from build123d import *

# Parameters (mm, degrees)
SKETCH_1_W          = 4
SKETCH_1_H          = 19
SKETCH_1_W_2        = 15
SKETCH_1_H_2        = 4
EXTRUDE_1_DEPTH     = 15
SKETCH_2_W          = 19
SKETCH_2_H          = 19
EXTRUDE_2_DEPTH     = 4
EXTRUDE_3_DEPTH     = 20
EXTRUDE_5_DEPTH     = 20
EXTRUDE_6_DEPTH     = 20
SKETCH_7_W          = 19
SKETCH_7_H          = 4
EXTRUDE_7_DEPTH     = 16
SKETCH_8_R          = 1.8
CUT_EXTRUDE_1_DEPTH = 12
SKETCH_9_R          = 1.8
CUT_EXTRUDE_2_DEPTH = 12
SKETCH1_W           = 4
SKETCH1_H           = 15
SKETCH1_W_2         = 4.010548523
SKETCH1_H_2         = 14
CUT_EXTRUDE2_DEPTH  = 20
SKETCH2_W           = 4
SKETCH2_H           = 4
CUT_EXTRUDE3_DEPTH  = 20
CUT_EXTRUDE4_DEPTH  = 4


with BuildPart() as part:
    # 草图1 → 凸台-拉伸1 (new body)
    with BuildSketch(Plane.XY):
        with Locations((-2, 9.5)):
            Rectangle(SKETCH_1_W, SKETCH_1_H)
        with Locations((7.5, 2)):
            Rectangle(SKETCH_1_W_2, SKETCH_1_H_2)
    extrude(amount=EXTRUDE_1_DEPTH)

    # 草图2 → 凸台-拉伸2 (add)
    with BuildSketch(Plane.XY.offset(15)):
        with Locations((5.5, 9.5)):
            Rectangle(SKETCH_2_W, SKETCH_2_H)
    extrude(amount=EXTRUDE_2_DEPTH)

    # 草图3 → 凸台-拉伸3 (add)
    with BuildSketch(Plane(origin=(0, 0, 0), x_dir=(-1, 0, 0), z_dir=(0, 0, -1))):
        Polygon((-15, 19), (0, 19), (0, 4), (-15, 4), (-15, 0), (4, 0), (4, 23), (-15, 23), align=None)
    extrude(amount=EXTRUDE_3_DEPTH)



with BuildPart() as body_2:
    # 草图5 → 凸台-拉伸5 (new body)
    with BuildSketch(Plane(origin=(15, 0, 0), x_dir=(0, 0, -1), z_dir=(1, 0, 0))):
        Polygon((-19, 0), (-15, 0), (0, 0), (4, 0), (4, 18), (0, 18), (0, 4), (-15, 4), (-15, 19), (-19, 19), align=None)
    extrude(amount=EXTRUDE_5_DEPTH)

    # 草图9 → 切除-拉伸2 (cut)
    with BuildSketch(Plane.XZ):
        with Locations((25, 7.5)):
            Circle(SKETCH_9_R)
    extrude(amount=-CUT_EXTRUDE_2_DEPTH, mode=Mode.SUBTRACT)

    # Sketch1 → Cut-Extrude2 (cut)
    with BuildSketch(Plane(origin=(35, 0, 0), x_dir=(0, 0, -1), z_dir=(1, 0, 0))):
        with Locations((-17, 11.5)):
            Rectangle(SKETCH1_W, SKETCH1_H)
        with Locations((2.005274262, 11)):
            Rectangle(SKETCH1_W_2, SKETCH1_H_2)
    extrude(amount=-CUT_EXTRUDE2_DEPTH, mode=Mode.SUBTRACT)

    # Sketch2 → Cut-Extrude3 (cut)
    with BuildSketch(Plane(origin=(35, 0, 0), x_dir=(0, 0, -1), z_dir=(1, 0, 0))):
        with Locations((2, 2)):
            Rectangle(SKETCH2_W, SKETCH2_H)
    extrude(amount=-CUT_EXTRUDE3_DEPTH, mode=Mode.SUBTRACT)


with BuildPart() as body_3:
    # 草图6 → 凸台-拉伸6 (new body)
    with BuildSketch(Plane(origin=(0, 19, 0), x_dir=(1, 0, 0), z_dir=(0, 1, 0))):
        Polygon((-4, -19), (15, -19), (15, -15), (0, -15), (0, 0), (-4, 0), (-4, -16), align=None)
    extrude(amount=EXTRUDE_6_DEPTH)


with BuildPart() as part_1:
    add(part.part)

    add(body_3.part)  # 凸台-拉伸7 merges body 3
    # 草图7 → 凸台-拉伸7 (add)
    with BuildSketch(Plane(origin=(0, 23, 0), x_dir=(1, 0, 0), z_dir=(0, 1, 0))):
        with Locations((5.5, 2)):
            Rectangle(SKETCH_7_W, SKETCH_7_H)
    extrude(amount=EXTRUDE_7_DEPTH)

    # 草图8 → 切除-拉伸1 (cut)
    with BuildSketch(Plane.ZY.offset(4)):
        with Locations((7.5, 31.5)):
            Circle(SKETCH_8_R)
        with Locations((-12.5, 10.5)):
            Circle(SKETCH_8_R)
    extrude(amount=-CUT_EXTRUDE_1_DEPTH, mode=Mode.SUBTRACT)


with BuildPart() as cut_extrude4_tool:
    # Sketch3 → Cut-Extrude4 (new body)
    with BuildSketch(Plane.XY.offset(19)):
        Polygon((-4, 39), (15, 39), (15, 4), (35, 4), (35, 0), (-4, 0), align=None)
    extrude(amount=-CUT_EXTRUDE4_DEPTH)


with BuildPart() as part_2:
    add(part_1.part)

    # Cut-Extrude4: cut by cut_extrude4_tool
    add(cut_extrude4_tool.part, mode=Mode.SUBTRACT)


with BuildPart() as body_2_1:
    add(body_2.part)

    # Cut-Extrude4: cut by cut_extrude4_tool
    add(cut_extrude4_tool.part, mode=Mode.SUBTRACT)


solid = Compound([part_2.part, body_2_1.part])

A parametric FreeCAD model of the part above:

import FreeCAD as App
import Part
import Sketcher
from FreeCAD import Vector
Q = App.Units.Quantity

doc = App.newDocument("Part")
body = doc.addObject("PartDesign::Body", "Body")

# Sketch on XY plane
sketch1 = doc.addObject("Sketcher::SketchObject", "Sketch")
body.addObject(sketch1)
sketch1.AttachmentSupport = (doc.XY_Plane, [""])
sketch1.MapMode = "FlatFace"
sketch1.addGeometry(Part.LineSegment(Vector(-4, 19, 0), Vector(-4, 0, 0)), False)
sketch1.addGeometry(Part.LineSegment(Vector(-4, 0, 0), Vector(15, 0, 0)), False)
sketch1.addGeometry(Part.LineSegment(Vector(15, 0, 0), Vector(15, 4, 0)), False)
sketch1.addGeometry(Part.LineSegment(Vector(15, 4, 0), Vector(0, 4, 0)), False)
sketch1.addGeometry(Part.LineSegment(Vector(0, 4, 0), Vector(0, 19, 0)), False)
sketch1.addGeometry(Part.LineSegment(Vector(0, 19, 0), Vector(-4, 19, 0)), False)
sketch1.addConstraint(Sketcher.Constraint("Coincident", 0, 2, 1, 1))
sketch1.addConstraint(Sketcher.Constraint("Coincident", 1, 2, 2, 1))
sketch1.addConstraint(Sketcher.Constraint("Coincident", 2, 2, 3, 1))
sketch1.addConstraint(Sketcher.Constraint("Coincident", 3, 2, 4, 1))
sketch1.addConstraint(Sketcher.Constraint("Coincident", 4, 2, 5, 1))
sketch1.addConstraint(Sketcher.Constraint("Coincident", 5, 2, 0, 1))
sketch1.addConstraint(Sketcher.Constraint("Vertical", 0))
sketch1.addConstraint(Sketcher.Constraint("Horizontal", 1))
sketch1.addConstraint(Sketcher.Constraint("Vertical", 2))
sketch1.addConstraint(Sketcher.Constraint("Horizontal", 3))
sketch1.addConstraint(Sketcher.Constraint("Vertical", 4))
sketch1.addConstraint(Sketcher.Constraint("Horizontal", 5))
sketch1.addConstraint(Sketcher.Constraint("PointOnObject", 0, 2, -1))
sketch1.addConstraint(Sketcher.Constraint("PointOnObject", 3, 2, -2))
sketch1.addConstraint(Sketcher.Constraint("Equal", 1, 0))
sketch1.addConstraint(Sketcher.Constraint("Equal", 5, 2))
sketch1.addConstraint(Sketcher.Constraint("DistanceX", 1, 1, 1, 2, Q("19 mm")))
sketch1.addConstraint(Sketcher.Constraint("DistanceX", 3, 2, 3, 1, Q("15 mm")))
pad1 = doc.addObject("PartDesign::Pad", "Pad")
body.addObject(pad1)
pad1.Profile = sketch1
pad1.Length = 15

# Sketch on XY plane
sketch2 = doc.addObject("Sketcher::SketchObject", "Sketch001")
body.addObject(sketch2)
sketch2.AttachmentSupport = (doc.XY_Plane, [""])
sketch2.MapMode = "FlatFace"
sketch2.AttachmentOffset = App.Placement(Vector(0, 0, 15), App.Rotation())
sketch2.addGeometry(Part.LineSegment(Vector(-4, 19, 0), Vector(-4, 0, 0)), False)
sketch2.addGeometry(Part.LineSegment(Vector(-4, 0, 0), Vector(15, 0, 0)), False)
sketch2.addGeometry(Part.LineSegment(Vector(15, 0, 0), Vector(15, 19, 0)), False)
sketch2.addGeometry(Part.LineSegment(Vector(15, 19, 0), Vector(-4, 19, 0)), False)
sketch2.addConstraint(Sketcher.Constraint("Coincident", 0, 2, 1, 1))
sketch2.addConstraint(Sketcher.Constraint("Coincident", 1, 2, 2, 1))
sketch2.addConstraint(Sketcher.Constraint("Coincident", 2, 2, 3, 1))
sketch2.addConstraint(Sketcher.Constraint("Coincident", 3, 2, 0, 1))
sketch2.addConstraint(Sketcher.Constraint("Vertical", 0))
sketch2.addConstraint(Sketcher.Constraint("Horizontal", 1))
sketch2.addConstraint(Sketcher.Constraint("Vertical", 2))
sketch2.addConstraint(Sketcher.Constraint("Horizontal", 3))
sketch2.addConstraint(Sketcher.Constraint("PointOnObject", 0, 2, -1))
sketch2.addConstraint(Sketcher.Constraint("Equal", 3, 0))
sketch2.addConstraint(Sketcher.Constraint("DistanceX", 1, 1, 1, 2, Q("19 mm")))
sketch2.addConstraint(Sketcher.Constraint("DistanceX", 0, 2, -1, 1, Q("4 mm")))
pad2 = doc.addObject("PartDesign::Pad", "Pad001")
body.addObject(pad2)
pad2.Profile = sketch2
pad2.Length = 4

# Sketch on XY plane
sketch3 = doc.addObject("Sketcher::SketchObject", "Sketch002")
body.addObject(sketch3)
sketch3.AttachmentSupport = (doc.XY_Plane, [""])
sketch3.MapMode = "FlatFace"
sketch3.addGeometry(Part.LineSegment(Vector(15, 19, 0), Vector(0, 19, 0)), False)
sketch3.addGeometry(Part.LineSegment(Vector(0, 19, 0), Vector(0, 4, 0)), False)
sketch3.addGeometry(Part.LineSegment(Vector(0, 4, 0), Vector(15, 4, 0)), False)
sketch3.addGeometry(Part.LineSegment(Vector(15, 4, 0), Vector(15, 0, 0)), False)
sketch3.addGeometry(Part.LineSegment(Vector(15, 0, 0), Vector(-4, 0, 0)), False)
sketch3.addGeometry(Part.LineSegment(Vector(-4, 0, 0), Vector(-4, 23, 0)), False)
sketch3.addGeometry(Part.LineSegment(Vector(-4, 23, 0), Vector(15, 23, 0)), False)
sketch3.addGeometry(Part.LineSegment(Vector(15, 23, 0), Vector(15, 19, 0)), False)
sketch3.addConstraint(Sketcher.Constraint("Coincident", 0, 2, 1, 1))
sketch3.addConstraint(Sketcher.Constraint("Coincident", 1, 2, 2, 1))
sketch3.addConstraint(Sketcher.Constraint("Coincident", 2, 2, 3, 1))
sketch3.addConstraint(Sketcher.Constraint("Coincident", 3, 2, 4, 1))
sketch3.addConstraint(Sketcher.Constraint("Coincident", 4, 2, 5, 1))
sketch3.addConstraint(Sketcher.Constraint("Coincident", 5, 2, 6, 1))
sketch3.addConstraint(Sketcher.Constraint("Coincident", 6, 2, 7, 1))
sketch3.addConstraint(Sketcher.Constraint("Coincident", 7, 2, 0, 1))
sketch3.addConstraint(Sketcher.Constraint("Horizontal", 0))
sketch3.addConstraint(Sketcher.Constraint("Vertical", 1))
sketch3.addConstraint(Sketcher.Constraint("Horizontal", 2))
sketch3.addConstraint(Sketcher.Constraint("Vertical", 3))
sketch3.addConstraint(Sketcher.Constraint("Horizontal", 4))
sketch3.addConstraint(Sketcher.Constraint("Vertical", 5))
sketch3.addConstraint(Sketcher.Constraint("Horizontal", 6))
sketch3.addConstraint(Sketcher.Constraint("Vertical", 7))
sketch3.addConstraint(Sketcher.Constraint("PointOnObject", 0, 2, -2))
sketch3.addConstraint(Sketcher.Constraint("PointOnObject", 3, 2, -1))
sketch3.addConstraint(Sketcher.Constraint("Vertical", 3, 2, 6, 2))
sketch3.addConstraint(Sketcher.Constraint("Equal", 2, 1))
sketch3.addConstraint(Sketcher.Constraint("Equal", 3, 7))
sketch3.addConstraint(Sketcher.Constraint("DistanceX", 0, 2, 0, 1, Q("15 mm")))
sketch3.addConstraint(Sketcher.Constraint("DistanceX", 4, 2, 4, 1, Q("19 mm")))
sketch3.addConstraint(Sketcher.Constraint("DistanceY", 3, 2, 3, 1, Q("4 mm")))
pad3 = doc.addObject("PartDesign::Pad", "Pad002")
body.addObject(pad3)
pad3.Profile = sketch3
pad3.Length = 20
pad3.Reversed = True
body2 = doc.addObject("PartDesign::Body", "Body001")

# Sketch on YZ plane
sketch4 = doc.addObject("Sketcher::SketchObject", "Sketch003")
body2.addObject(sketch4)
sketch4.AttachmentSupport = (doc.getObject("YZ_Plane001"), [""])
sketch4.MapMode = "FlatFace"
sketch4.AttachmentOffset = App.Placement(Vector(0, 0, 15), App.Rotation())
sketch4.addGeometry(Part.LineSegment(Vector(0, 19, 0), Vector(0, -4, 0)), False)
sketch4.addGeometry(Part.LineSegment(Vector(0, -4, 0), Vector(18, -4, 0)), False)
sketch4.addGeometry(Part.LineSegment(Vector(18, -4, 0), Vector(18, 0, 0)), False)
sketch4.addGeometry(Part.LineSegment(Vector(18, 0, 0), Vector(4, 0, 0)), False)
sketch4.addGeometry(Part.LineSegment(Vector(4, 0, 0), Vector(4, 15, 0)), False)
sketch4.addGeometry(Part.LineSegment(Vector(4, 15, 0), Vector(19, 15, 0)), False)
sketch4.addGeometry(Part.LineSegment(Vector(19, 15, 0), Vector(19, 19, 0)), False)
sketch4.addGeometry(Part.LineSegment(Vector(19, 19, 0), Vector(0, 19, 0)), False)
sketch4.addConstraint(Sketcher.Constraint("Coincident", 0, 2, 1, 1))
sketch4.addConstraint(Sketcher.Constraint("Coincident", 1, 2, 2, 1))
sketch4.addConstraint(Sketcher.Constraint("Coincident", 2, 2, 3, 1))
sketch4.addConstraint(Sketcher.Constraint("Coincident", 3, 2, 4, 1))
sketch4.addConstraint(Sketcher.Constraint("Coincident", 4, 2, 5, 1))
sketch4.addConstraint(Sketcher.Constraint("Coincident", 5, 2, 6, 1))
sketch4.addConstraint(Sketcher.Constraint("Coincident", 6, 2, 7, 1))
sketch4.addConstraint(Sketcher.Constraint("Coincident", 7, 2, 0, 1))
sketch4.addConstraint(Sketcher.Constraint("Vertical", 0))
sketch4.addConstraint(Sketcher.Constraint("Horizontal", 1))
sketch4.addConstraint(Sketcher.Constraint("Vertical", 2))
sketch4.addConstraint(Sketcher.Constraint("Horizontal", 3))
sketch4.addConstraint(Sketcher.Constraint("Vertical", 4))
sketch4.addConstraint(Sketcher.Constraint("Horizontal", 5))
sketch4.addConstraint(Sketcher.Constraint("Vertical", 6))
sketch4.addConstraint(Sketcher.Constraint("Horizontal", 7))
sketch4.addConstraint(Sketcher.Constraint("PointOnObject", 0, 2, -2))
sketch4.addConstraint(Sketcher.Constraint("PointOnObject", 2, 2, -1))
sketch4.addConstraint(Sketcher.Constraint("Equal", 5, 4))
sketch4.addConstraint(Sketcher.Constraint("Equal", 2, 6))
sketch4.addConstraint(Sketcher.Constraint("DistanceX", 1, 1, 1, 2, Q("18 mm")))
sketch4.addConstraint(Sketcher.Constraint("DistanceX", 3, 2, 3, 1, Q("14 mm")))
sketch4.addConstraint(Sketcher.Constraint("DistanceX", 5, 1, 5, 2, Q("15 mm")))
sketch4.addConstraint(Sketcher.Constraint("DistanceY", 0, 2, 0, 1, Q("23 mm")))
pad4 = doc.addObject("PartDesign::Pad", "Pad003")
body2.addObject(pad4)
pad4.Profile = sketch4
pad4.Length = 20

# Sketch on XZ plane
sketch5 = doc.addObject("Sketcher::SketchObject", "Sketch004")
body2.addObject(sketch5)
sketch5.AttachmentSupport = (doc.getObject("XZ_Plane001"), [""])
sketch5.MapMode = "FlatFace"
sketch5.addGeometry(Part.Circle(Vector(25, 7.5, 0), Vector(0, 0, 1), 1.8), False)
sketch5.addConstraint(Sketcher.Constraint("Diameter", 0, Q("3.6 mm")))
sketch5.addConstraint(Sketcher.Constraint("DistanceX", -1, 1, 0, 3, Q("25 mm")))
sketch5.addConstraint(Sketcher.Constraint("DistanceY", -1, 1, 0, 3, Q("7.5 mm")))
pocket1 = doc.addObject("PartDesign::Pocket", "Pocket")
body2.addObject(pocket1)
pocket1.Profile = sketch5
pocket1.Length = 12

# Sketch on YZ plane
sketch6 = doc.addObject("Sketcher::SketchObject", "Sketch005")
body2.addObject(sketch6)
sketch6.AttachmentSupport = (doc.getObject("YZ_Plane001"), [""])
sketch6.MapMode = "FlatFace"
sketch6.AttachmentOffset = App.Placement(Vector(0, 0, 35), App.Rotation())
sketch6.addGeometry(Part.LineSegment(Vector(19, 19, 0), Vector(4, 19, 0)), False)
sketch6.addGeometry(Part.LineSegment(Vector(4, 19, 0), Vector(4, 15, 0)), False)
sketch6.addGeometry(Part.LineSegment(Vector(4, 15, 0), Vector(19, 15, 0)), False)
sketch6.addGeometry(Part.LineSegment(Vector(19, 15, 0), Vector(19, 19, 0)), False)
sketch6.addGeometry(Part.LineSegment(Vector(18, 0, 0), Vector(4, 0, 0)), False)
sketch6.addGeometry(Part.LineSegment(Vector(4, 0, 0), Vector(4, -4, 0)), False)
sketch6.addGeometry(Part.LineSegment(Vector(4, -4, 0), Vector(18, -4, 0)), False)
sketch6.addGeometry(Part.LineSegment(Vector(18, -4, 0), Vector(18, 0, 0)), False)
sketch6.addConstraint(Sketcher.Constraint("Coincident", 0, 2, 1, 1))
sketch6.addConstraint(Sketcher.Constraint("Coincident", 1, 2, 2, 1))
sketch6.addConstraint(Sketcher.Constraint("Coincident", 2, 2, 3, 1))
sketch6.addConstraint(Sketcher.Constraint("Coincident", 3, 2, 0, 1))
sketch6.addConstraint(Sketcher.Constraint("Coincident", 4, 2, 5, 1))
sketch6.addConstraint(Sketcher.Constraint("Coincident", 5, 2, 6, 1))
sketch6.addConstraint(Sketcher.Constraint("Coincident", 6, 2, 7, 1))
sketch6.addConstraint(Sketcher.Constraint("Coincident", 7, 2, 4, 1))
sketch6.addConstraint(Sketcher.Constraint("Horizontal", 0))
sketch6.addConstraint(Sketcher.Constraint("Vertical", 1))
sketch6.addConstraint(Sketcher.Constraint("Horizontal", 2))
sketch6.addConstraint(Sketcher.Constraint("Vertical", 3))
sketch6.addConstraint(Sketcher.Constraint("Horizontal", 4))
sketch6.addConstraint(Sketcher.Constraint("Vertical", 5))
sketch6.addConstraint(Sketcher.Constraint("Horizontal", 6))
sketch6.addConstraint(Sketcher.Constraint("Vertical", 7))
sketch6.addConstraint(Sketcher.Constraint("PointOnObject", 4, 2, -1))
sketch6.addConstraint(Sketcher.Constraint("Vertical", 1, 2, 4, 2))
sketch6.addConstraint(Sketcher.Constraint("DistanceX", 0, 2, 0, 1, Q("15 mm")))
sketch6.addConstraint(Sketcher.Constraint("DistanceX", 4, 2, 4, 1, Q("14 mm")))
sketch6.addConstraint(Sketcher.Constraint("DistanceY", 1, 2, 1, 1, Q("4 mm")))
sketch6.addConstraint(Sketcher.Constraint("DistanceX", -1, 1, 0, 2, Q("4 mm")))
sketch6.addConstraint(Sketcher.Constraint("DistanceY", -1, 1, 0, 2, Q("19 mm")))
sketch6.addConstraint(Sketcher.Constraint("DistanceY", 5, 2, 5, 1, Q("4.010549 mm")))
pocket2 = doc.addObject("PartDesign::Pocket", "Pocket001")
body2.addObject(pocket2)
pocket2.Profile = sketch6
pocket2.Length = 20

# Sketch on YZ plane
sketch7 = doc.addObject("Sketcher::SketchObject", "Sketch006")
body2.addObject(sketch7)
sketch7.AttachmentSupport = (doc.getObject("YZ_Plane001"), [""])
sketch7.MapMode = "FlatFace"
sketch7.AttachmentOffset = App.Placement(Vector(0, 0, 35), App.Rotation())
sketch7.addGeometry(Part.LineSegment(Vector(4, 0, 0), Vector(0, 0, 0)), False)
sketch7.addGeometry(Part.LineSegment(Vector(0, 0, 0), Vector(0, -4, 0)), False)
sketch7.addGeometry(Part.LineSegment(Vector(0, -4, 0), Vector(4, -4, 0)), False)
sketch7.addGeometry(Part.LineSegment(Vector(4, -4, 0), Vector(4, 0, 0)), False)
sketch7.addConstraint(Sketcher.Constraint("Coincident", 0, 2, 1, 1))
sketch7.addConstraint(Sketcher.Constraint("Coincident", 1, 2, 2, 1))
sketch7.addConstraint(Sketcher.Constraint("Coincident", 2, 2, 3, 1))
sketch7.addConstraint(Sketcher.Constraint("Coincident", 3, 2, 0, 1))
sketch7.addConstraint(Sketcher.Constraint("Horizontal", 0))
sketch7.addConstraint(Sketcher.Constraint("Vertical", 1))
sketch7.addConstraint(Sketcher.Constraint("Horizontal", 2))
sketch7.addConstraint(Sketcher.Constraint("Vertical", 3))
sketch7.addConstraint(Sketcher.Constraint("Coincident", 0, 2, -1, 1))
sketch7.addConstraint(Sketcher.Constraint("Equal", 2, 1))
sketch7.addConstraint(Sketcher.Constraint("DistanceX", 0, 2, 0, 1, Q("4 mm")))
pocket3 = doc.addObject("PartDesign::Pocket", "Pocket002")
body2.addObject(pocket3)
pocket3.Profile = sketch7
pocket3.Length = 20
body3 = doc.addObject("PartDesign::Body", "Body002")

# Sketch on XZ plane
sketch8 = doc.addObject("Sketcher::SketchObject", "Sketch007")
body3.addObject(sketch8)
sketch8.AttachmentSupport = (doc.getObject("XZ_Plane002"), [""])
sketch8.MapMode = "FlatFace"
sketch8.AttachmentOffset = App.Placement(Vector(0, 0, -19), App.Rotation())
sketch8.addGeometry(Part.LineSegment(Vector(-4, 19, 0), Vector(15, 19, 0)), False)
sketch8.addGeometry(Part.LineSegment(Vector(15, 19, 0), Vector(15, 15, 0)), False)
sketch8.addGeometry(Part.LineSegment(Vector(15, 15, 0), Vector(0, 15, 0)), False)
sketch8.addGeometry(Part.LineSegment(Vector(0, 15, 0), Vector(0, 0, 0)), False)
sketch8.addGeometry(Part.LineSegment(Vector(0, 0, 0), Vector(-4, 0, 0)), False)
sketch8.addGeometry(Part.LineSegment(Vector(-4, 0, 0), Vector(-4, 19, 0)), False)
sketch8.addConstraint(Sketcher.Constraint("Coincident", 0, 2, 1, 1))
sketch8.addConstraint(Sketcher.Constraint("Coincident", 1, 2, 2, 1))
sketch8.addConstraint(Sketcher.Constraint("Coincident", 2, 2, 3, 1))
sketch8.addConstraint(Sketcher.Constraint("Coincident", 3, 2, 4, 1))
sketch8.addConstraint(Sketcher.Constraint("Coincident", 4, 2, 5, 1))
sketch8.addConstraint(Sketcher.Constraint("Coincident", 5, 2, 0, 1))
sketch8.addConstraint(Sketcher.Constraint("Horizontal", 0))
sketch8.addConstraint(Sketcher.Constraint("Vertical", 1))
sketch8.addConstraint(Sketcher.Constraint("Horizontal", 2))
sketch8.addConstraint(Sketcher.Constraint("Vertical", 3))
sketch8.addConstraint(Sketcher.Constraint("Horizontal", 4))
sketch8.addConstraint(Sketcher.Constraint("Vertical", 5))
sketch8.addConstraint(Sketcher.Constraint("Coincident", 3, 2, -1, 1))
sketch8.addConstraint(Sketcher.Constraint("Equal", 4, 1))
sketch8.addConstraint(Sketcher.Constraint("Equal", 2, 3))
sketch8.addConstraint(Sketcher.Constraint("DistanceX", 0, 1, 0, 2, Q("19 mm")))
sketch8.addConstraint(Sketcher.Constraint("DistanceX", 2, 2, 2, 1, Q("15 mm")))
pad5 = doc.addObject("PartDesign::Pad", "Pad004")
body3.addObject(pad5)
pad5.Profile = sketch8
pad5.Length = 20
pad5.Reversed = True
doc.recompute()

boolean = doc.addObject("PartDesign::Boolean", "Boolean")
body.addObject(boolean)
boolean.Type = "Fuse"
boolean.addObjects([body3])

# Sketch on XZ plane
sketch9 = doc.addObject("Sketcher::SketchObject", "Sketch008")
body.addObject(sketch9)
sketch9.AttachmentSupport = (doc.XZ_Plane, [""])
sketch9.MapMode = "FlatFace"
sketch9.AttachmentOffset = App.Placement(Vector(0, 0, -23), App.Rotation())
sketch9.addGeometry(Part.LineSegment(Vector(-4, -4, 0), Vector(-4, 0, 0)), False)
sketch9.addGeometry(Part.LineSegment(Vector(-4, 0, 0), Vector(15, 0, 0)), False)
sketch9.addGeometry(Part.LineSegment(Vector(15, 0, 0), Vector(15, -4, 0)), False)
sketch9.addGeometry(Part.LineSegment(Vector(15, -4, 0), Vector(-4, -4, 0)), False)
sketch9.addConstraint(Sketcher.Constraint("Coincident", 0, 2, 1, 1))
sketch9.addConstraint(Sketcher.Constraint("Coincident", 1, 2, 2, 1))
sketch9.addConstraint(Sketcher.Constraint("Coincident", 2, 2, 3, 1))
sketch9.addConstraint(Sketcher.Constraint("Coincident", 3, 2, 0, 1))
sketch9.addConstraint(Sketcher.Constraint("Vertical", 0))
sketch9.addConstraint(Sketcher.Constraint("Horizontal", 1))
sketch9.addConstraint(Sketcher.Constraint("Vertical", 2))
sketch9.addConstraint(Sketcher.Constraint("Horizontal", 3))
sketch9.addConstraint(Sketcher.Constraint("PointOnObject", 0, 2, -1))
sketch9.addConstraint(Sketcher.Constraint("DistanceX", 1, 1, 1, 2, Q("19 mm")))
sketch9.addConstraint(Sketcher.Constraint("DistanceY", 0, 1, 0, 2, Q("4 mm")))
sketch9.addConstraint(Sketcher.Constraint("DistanceX", 0, 2, -1, 1, Q("4 mm")))
pad6 = doc.addObject("PartDesign::Pad", "Pad005")
body.addObject(pad6)
pad6.Profile = sketch9
pad6.Length = 16
pad6.Reversed = True

# Sketch on YZ plane
sketch10 = doc.addObject("Sketcher::SketchObject", "Sketch009")
body.addObject(sketch10)
sketch10.AttachmentSupport = (doc.YZ_Plane, [""])
sketch10.MapMode = "FlatFace"
sketch10.AttachmentOffset = App.Placement(Vector(0, 0, -4), App.Rotation())
sketch10.addGeometry(Part.Circle(Vector(31.5, 7.5, 0), Vector(0, 0, 1), 1.8), False)
sketch10.addGeometry(Part.Circle(Vector(10.5, -12.5, 0), Vector(0, 0, 1), 1.8), False)
sketch10.addConstraint(Sketcher.Constraint("Equal", 0, 1))
sketch10.addConstraint(Sketcher.Constraint("Diameter", 0, Q("3.6 mm")))
sketch10.addConstraint(Sketcher.Constraint("DistanceX", 1, 3, 0, 3, Q("21 mm")))
sketch10.addConstraint(Sketcher.Constraint("DistanceY", 1, 3, 0, 3, Q("20 mm")))
sketch10.addConstraint(Sketcher.Constraint("DistanceX", -1, 1, 0, 3, Q("31.5 mm")))
sketch10.addConstraint(Sketcher.Constraint("DistanceY", -1, 1, 0, 3, Q("7.5 mm")))
pocket4 = doc.addObject("PartDesign::Pocket", "Pocket003")
body.addObject(pocket4)
pocket4.Profile = sketch10
pocket4.Length = 12
pocket4.Reversed = True
body4 = doc.addObject("PartDesign::Body", "Body003")

# Sketch on XY plane
sketch11 = doc.addObject("Sketcher::SketchObject", "Sketch010")
body4.addObject(sketch11)
sketch11.AttachmentSupport = (doc.getObject("XY_Plane003"), [""])
sketch11.MapMode = "FlatFace"
sketch11.AttachmentOffset = App.Placement(Vector(0, 0, 19), App.Rotation())
sketch11.addGeometry(Part.LineSegment(Vector(15, 39, 0), Vector(-4, 39, 0)), False)
sketch11.addGeometry(Part.LineSegment(Vector(-4, 39, 0), Vector(-4, 0, 0)), False)
sketch11.addGeometry(Part.LineSegment(Vector(-4, 0, 0), Vector(35, 0, 0)), False)
sketch11.addGeometry(Part.LineSegment(Vector(35, 0, 0), Vector(35, 4, 0)), False)
sketch11.addGeometry(Part.LineSegment(Vector(35, 4, 0), Vector(15, 4, 0)), False)
sketch11.addGeometry(Part.LineSegment(Vector(15, 4, 0), Vector(15, 39, 0)), False)
sketch11.addConstraint(Sketcher.Constraint("Coincident", 0, 2, 1, 1))
sketch11.addConstraint(Sketcher.Constraint("Coincident", 1, 2, 2, 1))
sketch11.addConstraint(Sketcher.Constraint("Coincident", 2, 2, 3, 1))
sketch11.addConstraint(Sketcher.Constraint("Coincident", 3, 2, 4, 1))
sketch11.addConstraint(Sketcher.Constraint("Coincident", 4, 2, 5, 1))
sketch11.addConstraint(Sketcher.Constraint("Coincident", 5, 2, 0, 1))
sketch11.addConstraint(Sketcher.Constraint("Horizontal", 0))
sketch11.addConstraint(Sketcher.Constraint("Vertical", 1))
sketch11.addConstraint(Sketcher.Constraint("Horizontal", 2))
sketch11.addConstraint(Sketcher.Constraint("Vertical", 3))
sketch11.addConstraint(Sketcher.Constraint("Horizontal", 4))
sketch11.addConstraint(Sketcher.Constraint("Vertical", 5))
sketch11.addConstraint(Sketcher.Constraint("PointOnObject", 1, 2, -1))
sketch11.addConstraint(Sketcher.Constraint("Equal", 2, 1))
sketch11.addConstraint(Sketcher.Constraint("DistanceX", 0, 2, 0, 1, Q("19 mm")))
sketch11.addConstraint(Sketcher.Constraint("DistanceX", 2, 1, 2, 2, Q("39 mm")))
sketch11.addConstraint(Sketcher.Constraint("DistanceY", 3, 1, 3, 2, Q("4 mm")))
sketch11.addConstraint(Sketcher.Constraint("DistanceX", 0, 2, -1, 1, Q("4 mm")))
pad7 = doc.addObject("PartDesign::Pad", "Pad006")
body4.addObject(pad7)
pad7.Profile = sketch11
pad7.Length = 4
pad7.Reversed = True
doc.recompute()

body5 = doc.addObject("PartDesign::Body", "Body004")
body5.BaseFeature = body4
boolean2 = doc.addObject("PartDesign::Boolean", "Boolean001")
body.addObject(boolean2)
boolean2.Type = "Cut"
boolean2.addObjects([body5])
doc.recompute()

boolean3 = doc.addObject("PartDesign::Boolean", "Boolean002")
body2.addObject(boolean3)
boolean3.Type = "Cut"
boolean3.addObjects([body4])

doc.recompute()
